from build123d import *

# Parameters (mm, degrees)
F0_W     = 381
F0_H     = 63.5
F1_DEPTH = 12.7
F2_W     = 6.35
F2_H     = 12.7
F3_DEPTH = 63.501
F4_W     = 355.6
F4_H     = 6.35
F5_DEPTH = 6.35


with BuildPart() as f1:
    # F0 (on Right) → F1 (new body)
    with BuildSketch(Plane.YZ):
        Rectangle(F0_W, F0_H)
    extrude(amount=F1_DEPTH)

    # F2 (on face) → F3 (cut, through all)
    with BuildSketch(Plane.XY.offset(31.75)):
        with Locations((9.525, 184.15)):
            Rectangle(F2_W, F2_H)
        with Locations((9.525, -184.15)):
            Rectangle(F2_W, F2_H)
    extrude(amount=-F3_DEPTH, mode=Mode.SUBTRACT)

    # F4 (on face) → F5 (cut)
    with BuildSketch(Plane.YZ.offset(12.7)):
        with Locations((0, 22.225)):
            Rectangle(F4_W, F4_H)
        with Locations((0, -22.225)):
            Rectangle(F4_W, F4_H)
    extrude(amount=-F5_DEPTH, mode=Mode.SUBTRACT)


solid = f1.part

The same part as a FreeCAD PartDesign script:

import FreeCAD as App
import Part
import Sketcher

V = App.Vector
Q = App.Units.Quantity


def add_polygon(sketch, points):
    """Adds a closed chain of lines whose ends are joined by coincident constraints."""
    first, n = sketch.GeometryCount, len(points)
    for a, b in zip(points, points[1:] + points[:1]):
        sketch.addGeometry(Part.LineSegment(App.Vector(*a, 0), App.Vector(*b, 0)), False)
    for i in range(n):
        sketch.addConstraint(Sketcher.Constraint("Coincident", first + i, 2, first + (i + 1) % n, 1))

doc = App.newDocument("Part")
body = doc.addObject("PartDesign::Body", "Body")

sketch1 = body.newObject("Sketcher::SketchObject", "Sketch")
sketch1.AttachmentSupport = (doc.getObject("YZ_Plane"), [""])
sketch1.MapMode = "FlatFace"
add_polygon(sketch1, [(-190.5, 31.75), (-190.5, -31.75), (190.5, -31.75), (190.5, 31.75)])
sketch1.addConstraint([
    Sketcher.Constraint("Vertical", 0),
    Sketcher.Constraint("Horizontal", 1),
    Sketcher.Constraint("Vertical", 2),
    Sketcher.Constraint("Horizontal", 3),
    Sketcher.Constraint("Symmetric", 0, 2, 2, 2, -1, 1),
    Sketcher.Constraint("DistanceX", 1, 1, 1, 2, Q("15 in")),
    Sketcher.Constraint("DistanceY", 0, 2, 0, 1, Q("2.5 in")),
])
pad1 = body.newObject("PartDesign::Pad", "Pad")
pad1.Profile = sketch1
pad1.Length = Q("0.5 in")

sketch2 = body.newObject("Sketcher::SketchObject", "Sketch001")
sketch2.AttachmentSupport = (doc.getObject("XY_Plane"), [""])
sketch2.MapMode = "FlatFace"
sketch2.AttachmentOffset = App.Placement(V(0, 0, 1.25 * 25.4), App.Rotation())
add_polygon(sketch2, [(6.35, 190.5), (6.35, 177.8), (12.7, 177.8), (12.7, 190.5)])
add_polygon(sketch2, [(6.35, -177.8), (6.35, -190.5), (12.7, -190.5), (12.7, -177.8)])
sketch2.addConstraint([
    Sketcher.Constraint("Vertical", 0),
    Sketcher.Constraint("Horizontal", 1),
    Sketcher.Constraint("Vertical", 2),
    Sketcher.Constraint("Horizontal", 3),
    Sketcher.Constraint("Vertical", 4),
    Sketcher.Constraint("Horizontal", 5),
    Sketcher.Constraint("Vertical", 6),
    Sketcher.Constraint("Horizontal", 7),
    Sketcher.Constraint("Symmetric", 3, 2, 4, 2, -1),
    Sketcher.Constraint("Symmetric", 1, 2, 6, 2, -1),
    Sketcher.Constraint("DistanceY", 0, 2, 0, 1, Q("0.5 in")),
    Sketcher.Constraint("DistanceY", -1, 1, 0, 2, Q("7 in")),
    Sketcher.Constraint("DistanceX", 1, 1, 1, 2, Q("0.25 in")),
    Sketcher.Constraint("DistanceX", -1, 1, 1, 2, Q("0.5 in")),
])
pocket1 = body.newObject("PartDesign::Pocket", "Pocket")
pocket1.Profile = sketch2
pocket1.Type = "ThroughAll"

sketch3 = body.newObject("Sketcher::SketchObject", "Sketch002")
sketch3.AttachmentSupport = (doc.getObject("YZ_Plane"), [""])
sketch3.MapMode = "FlatFace"
sketch3.AttachmentOffset = App.Placement(V(0, 0, 0.5 * 25.4), App.Rotation())
add_polygon(sketch3, [(-177.8, 25.4), (-177.8, 19.05), (177.8, 19.05), (177.8, 25.4)])
add_polygon(sketch3, [(-177.8, -19.05), (-177.8, -25.4), (177.8, -25.4), (177.8, -19.05)])
sketch3.addConstraint([
    Sketcher.Constraint("Vertical", 0),
    Sketcher.Constraint("Horizontal", 1),
    Sketcher.Constraint("Vertical", 2),
    Sketcher.Constraint("Horizontal", 3),
    Sketcher.Constraint("Vertical", 4),
    Sketcher.Constraint("Horizontal", 5),
    Sketcher.Constraint("Vertical", 6),
    Sketcher.Constraint("Horizontal", 7),
    Sketcher.Constraint("Symmetric", 2, 2, 4, 2, -1, 1),
    Sketcher.Constraint("Symmetric", 0, 2, 6, 2, -1, 1),
    Sketcher.Constraint("Vertical", 3, 2, 4, 2),
    Sketcher.Constraint("DistanceX", 1, 1, 1, 2, Q("14 in")),
    Sketcher.Constraint("DistanceY", -1, 1, 2, 2, Q("1 in")),
    Sketcher.Constraint("DistanceY", 0, 2, 0, 1, Q("0.25 in")),
])
pocket2 = body.newObject("PartDesign::Pocket", "Pocket001")
pocket2.Profile = sketch3
pocket2.Length = Q("0.25 in")

doc.recompute()
